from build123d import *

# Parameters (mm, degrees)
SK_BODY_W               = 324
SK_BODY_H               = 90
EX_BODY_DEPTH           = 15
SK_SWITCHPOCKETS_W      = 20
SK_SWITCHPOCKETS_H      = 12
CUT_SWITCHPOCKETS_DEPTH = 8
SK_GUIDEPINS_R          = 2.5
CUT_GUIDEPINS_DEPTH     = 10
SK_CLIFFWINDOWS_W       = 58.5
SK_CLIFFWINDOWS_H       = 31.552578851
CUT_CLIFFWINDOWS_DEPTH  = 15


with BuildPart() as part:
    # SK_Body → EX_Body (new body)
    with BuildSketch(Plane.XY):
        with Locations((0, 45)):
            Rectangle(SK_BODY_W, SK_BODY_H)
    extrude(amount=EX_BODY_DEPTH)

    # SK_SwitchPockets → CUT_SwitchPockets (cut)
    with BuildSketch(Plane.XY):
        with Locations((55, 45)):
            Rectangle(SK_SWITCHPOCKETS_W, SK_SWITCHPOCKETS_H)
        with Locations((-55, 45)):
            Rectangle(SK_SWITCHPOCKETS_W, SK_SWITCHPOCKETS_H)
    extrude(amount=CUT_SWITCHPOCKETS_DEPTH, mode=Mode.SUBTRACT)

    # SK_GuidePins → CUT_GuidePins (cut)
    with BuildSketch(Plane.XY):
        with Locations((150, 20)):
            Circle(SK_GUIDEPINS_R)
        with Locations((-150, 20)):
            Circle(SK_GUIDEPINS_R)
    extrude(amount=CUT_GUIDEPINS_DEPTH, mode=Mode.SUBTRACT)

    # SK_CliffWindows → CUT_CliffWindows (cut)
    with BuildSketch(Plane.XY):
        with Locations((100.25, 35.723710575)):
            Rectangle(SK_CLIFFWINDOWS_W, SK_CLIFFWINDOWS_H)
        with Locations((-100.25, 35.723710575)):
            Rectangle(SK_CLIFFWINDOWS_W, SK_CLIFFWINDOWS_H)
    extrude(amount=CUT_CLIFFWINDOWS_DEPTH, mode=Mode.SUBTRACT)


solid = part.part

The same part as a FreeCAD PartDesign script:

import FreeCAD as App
import Part
import Sketcher


def add_polygon(sketch, points):
    """Adds a closed chain of lines whose ends are joined by coincident constraints."""
    first, n = sketch.GeometryCount, len(points)
    for a, b in zip(points, points[1:] + points[:1]):
        sketch.addGeometry(Part.LineSegment(App.Vector(*a, 0), App.Vector(*b, 0)), False)
    for i in range(n):
        sketch.addConstraint(Sketcher.Constraint("Coincident", first + i, 2, first + (i + 1) % n, 1))

doc = App.newDocument("Part")
body = doc.addObject("PartDesign::Body", "Body")

sketch1 = body.newObject("Sketcher::SketchObject", "Sketch")
sketch1.AttachmentSupport = (doc.getObject("XY_Plane"), [""])
sketch1.MapMode = "FlatFace"
add_polygon(sketch1, [(-162, 90), (-162, 0), (162, 0), (162, 90)])
sketch1.addConstraint([
    Sketcher.Constraint("Vertical", 0),
    Sketcher.Constraint("Horizontal", 1),
    Sketcher.Constraint("Vertical", 2),
    Sketcher.Constraint("Horizontal", 3),
    Sketcher.Constraint("Symmetric", 0, 2, 1, 2, -1, 1),
    Sketcher.Constraint("DistanceX", 1, 1, 1, 2, 324.0),
    Sketcher.Constraint("DistanceY", 0, 2, 0, 1, 90.0),
])
pad1 = body.newObject("PartDesign::Pad", "Pad")
pad1.Profile = sketch1
pad1.Length = 15

sketch2 = body.newObject("Sketcher::SketchObject", "Sketch001")
sketch2.AttachmentSupport = (doc.getObject("XY_Plane"), [""])
sketch2.MapMode = "FlatFace"
add_polygon(sketch2, [(45, 51), (45, 39), (65, 39), (65, 51)])
add_polygon(sketch2, [(-65, 51), (-65, 39), (-45, 39), (-45, 51)])
sketch2.addConstraint([
    Sketcher.Constraint("Vertical", 0),
    Sketcher.Constraint("Horizontal", 1),
    Sketcher.Constraint("Vertical", 2),
    Sketcher.Constraint("Horizontal", 3),
    Sketcher.Constraint("Vertical", 4),
    Sketcher.Constraint("Horizontal", 5),
    Sketcher.Constraint("Vertical", 6),
    Sketcher.Constraint("Horizontal", 7),
    Sketcher.Constraint("Symmetric", 1, 2, 4, 2, -2),
    Sketcher.Constraint("Symmetric", 3, 2, 6, 2, -2),
    Sketcher.Constraint("DistanceX", 1, 1, 1, 2, 20.0),
    Sketcher.Constraint("DistanceY", 0, 2, 0, 1, 12.0),
    Sketcher.Constraint("DistanceX", -1, 1, 0, 2, 45.0),
    Sketcher.Constraint("DistanceY", -1, 1, 0, 2, 39.0),
])
pocket1 = body.newObject("PartDesign::Pocket", "Pocket")
pocket1.Profile = sketch2
pocket1.Length = 8
pocket1.Reversed = True

sketch3 = body.newObject("Sketcher::SketchObject", "Sketch002")
sketch3.AttachmentSupport = (doc.getObject("XY_Plane"), [""])
sketch3.MapMode = "FlatFace"
sketch3.addGeometry([
    Part.Circle(App.Vector(150, 20, 0), App.Vector(0, 0, 1), 2.5),
    Part.Circle(App.Vector(-150, 20, 0), App.Vector(0, 0, 1), 2.5),
], False)
sketch3.addConstraint([
    Sketcher.Constraint("Equal", 0, 1),
    Sketcher.Constraint("Symmetric", 0, 3, 1, 3, -2),
    Sketcher.Constraint("Diameter", 0, 5.0),
    Sketcher.Constraint("DistanceX", -1, 1, 0, 3, 150.0),
    Sketcher.Constraint("DistanceY", -1, 1, 0, 3, 20.0),
])
pocket2 = body.newObject("PartDesign::Pocket", "Pocket001")
pocket2.Profile = sketch3
pocket2.Length = 10
pocket2.Reversed = True

sketch4 = body.newObject("Sketcher::SketchObject", "Sketch003")
sketch4.AttachmentSupport = (doc.getObject("XY_Plane"), [""])
sketch4.MapMode = "FlatFace"
add_polygon(sketch4, [(71, 52), (71, 20), (130, 20), (130, 52)])
add_polygon(sketch4, [(-130, 52), (-130, 20), (-71, 20), (-71, 52)])
sketch4.addConstraint([
    Sketcher.Constraint("Vertical", 0),
    Sketcher.Constraint("Horizontal", 1),
    Sketcher.Constraint("Vertical", 2),
    Sketcher.Constraint("Horizontal", 3),
    Sketcher.Constraint("Vertical", 4),
    Sketcher.Constraint("Horizontal", 5),
    Sketcher.Constraint("Vertical", 6),
    Sketcher.Constraint("Horizontal", 7),
    Sketcher.Constraint("Symmetric", 1, 2, 4, 2, -2),
    Sketcher.Constraint("Symmetric", 3, 2, 6, 2, -2),
    Sketcher.Constraint("DistanceX", 1, 1, 1, 2, 58.5),
    Sketcher.Constraint("DistanceX", -1, 1, 0, 2, 71.0),
    Sketcher.Constraint("DistanceY", -1, 1, 2, 2, 51.5),
    Sketcher.Constraint("DistanceY", 0, 2, 0, 1, 31.552579),
])
pocket3 = body.newObject("PartDesign::Pocket", "Pocket002")
pocket3.Profile = sketch4
pocket3.Length = 15
pocket3.Reversed = True

doc.recompute()
